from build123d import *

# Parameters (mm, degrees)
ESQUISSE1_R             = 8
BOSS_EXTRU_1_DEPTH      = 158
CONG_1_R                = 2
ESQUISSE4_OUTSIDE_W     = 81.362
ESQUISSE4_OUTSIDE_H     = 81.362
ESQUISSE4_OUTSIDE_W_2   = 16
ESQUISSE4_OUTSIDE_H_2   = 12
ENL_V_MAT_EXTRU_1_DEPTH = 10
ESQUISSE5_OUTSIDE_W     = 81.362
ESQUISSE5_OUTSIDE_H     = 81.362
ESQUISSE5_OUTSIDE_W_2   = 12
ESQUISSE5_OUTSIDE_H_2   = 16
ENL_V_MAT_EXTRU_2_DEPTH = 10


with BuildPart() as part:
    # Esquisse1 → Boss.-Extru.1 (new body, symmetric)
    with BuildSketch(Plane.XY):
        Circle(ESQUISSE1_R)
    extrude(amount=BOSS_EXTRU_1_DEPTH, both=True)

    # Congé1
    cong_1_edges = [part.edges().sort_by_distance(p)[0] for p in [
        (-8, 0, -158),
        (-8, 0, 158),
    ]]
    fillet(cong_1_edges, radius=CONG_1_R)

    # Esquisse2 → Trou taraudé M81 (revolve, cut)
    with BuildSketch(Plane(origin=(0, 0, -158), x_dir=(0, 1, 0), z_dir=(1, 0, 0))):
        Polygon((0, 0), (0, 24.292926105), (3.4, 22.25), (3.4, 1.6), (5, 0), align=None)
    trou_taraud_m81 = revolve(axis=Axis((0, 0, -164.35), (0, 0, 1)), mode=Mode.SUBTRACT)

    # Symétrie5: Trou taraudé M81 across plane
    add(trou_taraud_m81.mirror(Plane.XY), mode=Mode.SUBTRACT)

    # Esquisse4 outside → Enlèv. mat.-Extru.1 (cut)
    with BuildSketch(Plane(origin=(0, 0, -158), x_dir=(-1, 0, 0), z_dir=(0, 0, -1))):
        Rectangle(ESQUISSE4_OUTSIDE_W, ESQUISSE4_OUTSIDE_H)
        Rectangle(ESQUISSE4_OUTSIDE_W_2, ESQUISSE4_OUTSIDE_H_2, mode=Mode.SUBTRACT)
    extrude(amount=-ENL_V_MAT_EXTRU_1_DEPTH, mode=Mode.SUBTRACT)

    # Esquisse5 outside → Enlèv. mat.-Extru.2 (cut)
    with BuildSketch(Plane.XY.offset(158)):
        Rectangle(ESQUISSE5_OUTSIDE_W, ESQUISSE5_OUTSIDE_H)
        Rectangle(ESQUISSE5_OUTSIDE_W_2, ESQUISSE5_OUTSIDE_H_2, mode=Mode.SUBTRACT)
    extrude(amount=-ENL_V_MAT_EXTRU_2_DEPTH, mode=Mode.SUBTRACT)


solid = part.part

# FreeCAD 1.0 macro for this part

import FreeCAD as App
import Part
import Sketcher

V = App.Vector
Q = App.Units.Quantity


def edges_at(feature, points):
    """Names of the edges that pass closest to the given points."""
    edges = feature.Shape.Edges
    near = lambda p: min(range(len(edges)), key=lambda i: edges[i].distToShape(Part.Vertex(*p))[0])
    return sorted({f"Edge{near(p) + 1}" for p in points})

doc = App.newDocument("Part")
params = doc.addObject("Spreadsheet::Sheet", "Params")
for row, (alias, value) in enumerate([
    ("sketch1_diameter", "16 mm"),
    ("pad1_length", "316 mm"),
    ("fillet_radius", "2 mm"),
    ("sketch2_width", "5 mm"),
    ("sketch2_height", "20.65 mm"),
    ("groove_angle", "360 deg"),
    ("sketch3_width", "16 mm"),
    ("sketch3_height", "12 mm"),
    ("pocket1_length", "10 mm"),
    ("sketch4_width", "12 mm"),
    ("sketch4_height", "16 mm"),
    ("pocket2_length", "10 mm"),
], start=1):
    params.set(f"A{row}", alias)
    params.set(f"B{row}", "=" + value)
    params.setAlias(f"B{row}", alias)

body = doc.addObject("PartDesign::Body", "Body")

# Sketch on XY plane
sketch1 = doc.addObject("Sketcher::SketchObject", "Sketch")
body.addObject(sketch1)
sketch1.AttachmentSupport = (doc.XY_Plane, [""])
sketch1.MapMode = "FlatFace"
sketch1.addGeometry(Part.Circle(V(0, 0, 0), V(0, 0, 1), 8), False)
sketch1.addConstraint(Sketcher.Constraint("Coincident", 0, 3, -1, 1))
sketch1.addConstraint(Sketcher.Constraint("Diameter", 0, Q("16 mm")))
sketch1.setExpression("Constraints[1]", "Params.sketch1_diameter")
pad1 = doc.addObject("PartDesign::Pad", "Pad")
body.addObject(pad1)
pad1.Profile = sketch1
pad1.setExpression("Length", "Params.pad1_length")
pad1.Midplane = True
doc.recompute()

fillet = doc.addObject("PartDesign::Fillet", "Fillet")
body.addObject(fillet)
fillet.Base = (pad1, edges_at(pad1, [(-8, 0, -158), (-8, 0, 158)]))
fillet.setExpression("Radius", "Params.fillet_radius")

# Sketch on YZ plane
sketch2 = doc.addObject("Sketcher::SketchObject", "Sketch001")
body.addObject(sketch2)
sketch2.AttachmentSupport = (doc.YZ_Plane, [""])
sketch2.MapMode = "FlatFace"
sketch2.addGeometry(Part.LineSegment(V(0, -133.7, 0), V(0, -158, 0)), False)
sketch2.addGeometry(Part.LineSegment(V(0, -158, 0), V(5, -158, 0)), False)
sketch2.addGeometry(Part.LineSegment(V(5, -158, 0), V(3.4, -156.4, 0)), False)
sketch2.addGeometry(Part.LineSegment(V(3.4, -156.4, 0), V(3.4, -135.8, 0)), False)
sketch2.addGeometry(Part.LineSegment(V(3.4, -135.8, 0), V(0, -133.7, 0)), False)
sketch2.addConstraint(Sketcher.Constraint("Coincident", 0, 2, 1, 1))
sketch2.addConstraint(Sketcher.Constraint("Coincident", 1, 2, 2, 1))
sketch2.addConstraint(Sketcher.Constraint("Coincident", 2, 2, 3, 1))
sketch2.addConstraint(Sketcher.Constraint("Coincident", 3, 2, 4, 1))
sketch2.addConstraint(Sketcher.Constraint("Coincident", 4, 2, 0, 1))
sketch2.addConstraint(Sketcher.Constraint("Vertical", 0))
sketch2.addConstraint(Sketcher.Constraint("Horizontal", 1))
sketch2.addConstraint(Sketcher.Constraint("Vertical", 3))
sketch2.addConstraint(Sketcher.Constraint("PointOnObject", 0, 2, -2))
sketch2.addConstraint(Sketcher.Constraint("DistanceX", 1, 1, 1, 2, Q("5 mm")))
sketch2.addConstraint(Sketcher.Constraint("Angle", 2, Q("135 deg")))
sketch2.addConstraint(Sketcher.Constraint("Angle", 4, Q("149 deg")))
sketch2.addConstraint(Sketcher.Constraint("DistanceY", 0, 2, -1, 1, Q("158 mm")))
sketch2.addConstraint(Sketcher.Constraint("DistanceY", 3, 1, 3, 2, Q("20.65 mm")))
sketch2.addConstraint(Sketcher.Constraint("DistanceX", -1, 1, 2, 2, Q("3.4 mm")))
sketch2.setExpression("Constraints[9]", "Params.sketch2_width")
sketch2.setExpression("Constraints[13]", "Params.sketch2_height")
groove = doc.addObject("PartDesign::Groove", "Groove")
body.addObject(groove)
groove.Profile = sketch2
groove.ReferenceAxis = (sketch2, ["V_Axis"])
groove.setExpression("Angle", "Params.groove_angle")
doc.recompute()

mirrored = doc.addObject("PartDesign::Mirrored", "Mirrored")
body.addObject(mirrored)
mirrored.Originals = [groove]
mirrored.MirrorPlane = (doc.XY_Plane, [""])
body.Tip = mirrored

# Sketch on XY plane
sketch3 = doc.addObject("Sketcher::SketchObject", "Sketch002")
body.addObject(sketch3)
sketch3.AttachmentSupport = (doc.XY_Plane, [""])
sketch3.MapMode = "FlatFace"
sketch3.AttachmentOffset = App.Placement(V(0, 0, -158), App.Rotation())
sketch3.addGeometry(Part.LineSegment(V(41, 41, 0), V(41, -41, 0)), False)
sketch3.addGeometry(Part.LineSegment(V(41, -41, 0), V(-41, -41, 0)), False)
sketch3.addGeometry(Part.LineSegment(V(-41, -41, 0), V(-41, 41, 0)), False)
sketch3.addGeometry(Part.LineSegment(V(-41, 41, 0), V(41, 41, 0)), False)
sketch3.addGeometry(Part.LineSegment(V(-8, -6, 0), V(8, -6, 0)), False)
sketch3.addGeometry(Part.LineSegment(V(8, -6, 0), V(8, 6, 0)), False)
sketch3.addGeometry(Part.LineSegment(V(8, 6, 0), V(-8, 6, 0)), False)
sketch3.addGeometry(Part.LineSegment(V(-8, 6, 0), V(-8, -6, 0)), False)
sketch3.addConstraint(Sketcher.Constraint("Coincident", 0, 2, 1, 1))
sketch3.addConstraint(Sketcher.Constraint("Coincident", 1, 2, 2, 1))
sketch3.addConstraint(Sketcher.Constraint("Coincident", 2, 2, 3, 1))
sketch3.addConstraint(Sketcher.Constraint("Coincident", 3, 2, 0, 1))
sketch3.addConstraint(Sketcher.Constraint("Coincident", 4, 2, 5, 1))
sketch3.addConstraint(Sketcher.Constraint("Coincident", 5, 2, 6, 1))
sketch3.addConstraint(Sketcher.Constraint("Coincident", 6, 2, 7, 1))
sketch3.addConstraint(Sketcher.Constraint("Coincident", 7, 2, 4, 1))
sketch3.addConstraint(Sketcher.Constraint("Vertical", 0))
sketch3.addConstraint(Sketcher.Constraint("Horizontal", 1))
sketch3.addConstraint(Sketcher.Constraint("Vertical", 2))
sketch3.addConstraint(Sketcher.Constraint("Horizontal", 3))
sketch3.addConstraint(Sketcher.Constraint("Horizontal", 4))
sketch3.addConstraint(Sketcher.Constraint("Vertical", 5))
sketch3.addConstraint(Sketcher.Constraint("Horizontal", 6))
sketch3.addConstraint(Sketcher.Constraint("Vertical", 7))
sketch3.addConstraint(Sketcher.Constraint("Symmetric", 0, 2, 2, 2, -1, 1))
sketch3.addConstraint(Sketcher.Constraint("Symmetric", 4, 2, 6, 2, -1, 1))
sketch3.addConstraint(Sketcher.Constraint("Equal", 3, 0))
sketch3.addConstraint(Sketcher.Constraint("DistanceX", 4, 1, 4, 2, Q("16 mm")))
sketch3.addConstraint(Sketcher.Constraint("DistanceY", 5, 1, 5, 2, Q("12 mm")))
sketch3.addConstraint(Sketcher.Constraint("DistanceX", 1, 2, 1, 1, Q("81.362 mm")))
sketch3.setExpression("Constraints[19]", "Params.sketch3_width")
sketch3.setExpression("Constraints[20]", "Params.sketch3_height")
pocket1 = doc.addObject("PartDesign::Pocket", "Pocket")
body.addObject(pocket1)
pocket1.Profile = sketch3
pocket1.setExpression("Length", "Params.pocket1_length")
pocket1.Reversed = True

# Sketch on XY plane
sketch4 = doc.addObject("Sketcher::SketchObject", "Sketch003")
body.addObject(sketch4)
sketch4.AttachmentSupport = (doc.XY_Plane, [""])
sketch4.MapMode = "FlatFace"
sketch4.AttachmentOffset = App.Placement(V(0, 0, 158), App.Rotation())
sketch4.addGeometry(Part.LineSegment(V(-41, 41, 0), V(-41, -41, 0)), False)
sketch4.addGeometry(Part.LineSegment(V(-41, -41, 0), V(41, -41, 0)), False)
sketch4.addGeometry(Part.LineSegment(V(41, -41, 0), V(41, 41, 0)), False)
sketch4.addGeometry(Part.LineSegment(V(41, 41, 0), V(-41, 41, 0)), False)
sketch4.addGeometry(Part.LineSegment(V(6, -8, 0), V(-6, -8, 0)), False)
sketch4.addGeometry(Part.LineSegment(V(-6, -8, 0), V(-6, 8, 0)), False)
sketch4.addGeometry(Part.LineSegment(V(-6, 8, 0), V(6, 8, 0)), False)
sketch4.addGeometry(Part.LineSegment(V(6, 8, 0), V(6, -8, 0)), False)
sketch4.addConstraint(Sketcher.Constraint("Coincident", 0, 2, 1, 1))
sketch4.addConstraint(Sketcher.Constraint("Coincident", 1, 2, 2, 1))
sketch4.addConstraint(Sketcher.Constraint("Coincident", 2, 2, 3, 1))
sketch4.addConstraint(Sketcher.Constraint("Coincident", 3, 2, 0, 1))
sketch4.addConstraint(Sketcher.Constraint("Coincident", 4, 2, 5, 1))
sketch4.addConstraint(Sketcher.Constraint("Coincident", 5, 2, 6, 1))
sketch4.addConstraint(Sketcher.Constraint("Coincident", 6, 2, 7, 1))
sketch4.addConstraint(Sketcher.Constraint("Coincident", 7, 2, 4, 1))
sketch4.addConstraint(Sketcher.Constraint("Vertical", 0))
sketch4.addConstraint(Sketcher.Constraint("Horizontal", 1))
sketch4.addConstraint(Sketcher.Constraint("Vertical", 2))
sketch4.addConstraint(Sketcher.Constraint("Horizontal", 3))
sketch4.addConstraint(Sketcher.Constraint("Horizontal", 4))
sketch4.addConstraint(Sketcher.Constraint("Vertical", 5))
sketch4.addConstraint(Sketcher.Constraint("Horizontal", 6))
sketch4.addConstraint(Sketcher.Constraint("Vertical", 7))
sketch4.addConstraint(Sketcher.Constraint("Symmetric", 0, 2, 2, 2, -1, 1))
sketch4.addConstraint(Sketcher.Constraint("Symmetric", 4, 2, 6, 2, -1, 1))
sketch4.addConstraint(Sketcher.Constraint("Equal", 3, 0))
sketch4.addConstraint(Sketcher.Constraint("DistanceX", 4, 2, 4, 1, Q("12 mm")))
sketch4.addConstraint(Sketcher.Constraint("DistanceY", 5, 1, 5, 2, Q("16 mm")))
sketch4.addConstraint(Sketcher.Constraint("DistanceX", 1, 1, 1, 2, Q("81.362 mm")))
sketch4.setExpression("Constraints[19]", "Params.sketch4_width")
sketch4.setExpression("Constraints[20]", "Params.sketch4_height")
pocket2 = doc.addObject("PartDesign::Pocket", "Pocket001")
body.addObject(pocket2)
pocket2.Profile = sketch4
pocket2.setExpression("Length", "Params.pocket2_length")

doc.recompute()
